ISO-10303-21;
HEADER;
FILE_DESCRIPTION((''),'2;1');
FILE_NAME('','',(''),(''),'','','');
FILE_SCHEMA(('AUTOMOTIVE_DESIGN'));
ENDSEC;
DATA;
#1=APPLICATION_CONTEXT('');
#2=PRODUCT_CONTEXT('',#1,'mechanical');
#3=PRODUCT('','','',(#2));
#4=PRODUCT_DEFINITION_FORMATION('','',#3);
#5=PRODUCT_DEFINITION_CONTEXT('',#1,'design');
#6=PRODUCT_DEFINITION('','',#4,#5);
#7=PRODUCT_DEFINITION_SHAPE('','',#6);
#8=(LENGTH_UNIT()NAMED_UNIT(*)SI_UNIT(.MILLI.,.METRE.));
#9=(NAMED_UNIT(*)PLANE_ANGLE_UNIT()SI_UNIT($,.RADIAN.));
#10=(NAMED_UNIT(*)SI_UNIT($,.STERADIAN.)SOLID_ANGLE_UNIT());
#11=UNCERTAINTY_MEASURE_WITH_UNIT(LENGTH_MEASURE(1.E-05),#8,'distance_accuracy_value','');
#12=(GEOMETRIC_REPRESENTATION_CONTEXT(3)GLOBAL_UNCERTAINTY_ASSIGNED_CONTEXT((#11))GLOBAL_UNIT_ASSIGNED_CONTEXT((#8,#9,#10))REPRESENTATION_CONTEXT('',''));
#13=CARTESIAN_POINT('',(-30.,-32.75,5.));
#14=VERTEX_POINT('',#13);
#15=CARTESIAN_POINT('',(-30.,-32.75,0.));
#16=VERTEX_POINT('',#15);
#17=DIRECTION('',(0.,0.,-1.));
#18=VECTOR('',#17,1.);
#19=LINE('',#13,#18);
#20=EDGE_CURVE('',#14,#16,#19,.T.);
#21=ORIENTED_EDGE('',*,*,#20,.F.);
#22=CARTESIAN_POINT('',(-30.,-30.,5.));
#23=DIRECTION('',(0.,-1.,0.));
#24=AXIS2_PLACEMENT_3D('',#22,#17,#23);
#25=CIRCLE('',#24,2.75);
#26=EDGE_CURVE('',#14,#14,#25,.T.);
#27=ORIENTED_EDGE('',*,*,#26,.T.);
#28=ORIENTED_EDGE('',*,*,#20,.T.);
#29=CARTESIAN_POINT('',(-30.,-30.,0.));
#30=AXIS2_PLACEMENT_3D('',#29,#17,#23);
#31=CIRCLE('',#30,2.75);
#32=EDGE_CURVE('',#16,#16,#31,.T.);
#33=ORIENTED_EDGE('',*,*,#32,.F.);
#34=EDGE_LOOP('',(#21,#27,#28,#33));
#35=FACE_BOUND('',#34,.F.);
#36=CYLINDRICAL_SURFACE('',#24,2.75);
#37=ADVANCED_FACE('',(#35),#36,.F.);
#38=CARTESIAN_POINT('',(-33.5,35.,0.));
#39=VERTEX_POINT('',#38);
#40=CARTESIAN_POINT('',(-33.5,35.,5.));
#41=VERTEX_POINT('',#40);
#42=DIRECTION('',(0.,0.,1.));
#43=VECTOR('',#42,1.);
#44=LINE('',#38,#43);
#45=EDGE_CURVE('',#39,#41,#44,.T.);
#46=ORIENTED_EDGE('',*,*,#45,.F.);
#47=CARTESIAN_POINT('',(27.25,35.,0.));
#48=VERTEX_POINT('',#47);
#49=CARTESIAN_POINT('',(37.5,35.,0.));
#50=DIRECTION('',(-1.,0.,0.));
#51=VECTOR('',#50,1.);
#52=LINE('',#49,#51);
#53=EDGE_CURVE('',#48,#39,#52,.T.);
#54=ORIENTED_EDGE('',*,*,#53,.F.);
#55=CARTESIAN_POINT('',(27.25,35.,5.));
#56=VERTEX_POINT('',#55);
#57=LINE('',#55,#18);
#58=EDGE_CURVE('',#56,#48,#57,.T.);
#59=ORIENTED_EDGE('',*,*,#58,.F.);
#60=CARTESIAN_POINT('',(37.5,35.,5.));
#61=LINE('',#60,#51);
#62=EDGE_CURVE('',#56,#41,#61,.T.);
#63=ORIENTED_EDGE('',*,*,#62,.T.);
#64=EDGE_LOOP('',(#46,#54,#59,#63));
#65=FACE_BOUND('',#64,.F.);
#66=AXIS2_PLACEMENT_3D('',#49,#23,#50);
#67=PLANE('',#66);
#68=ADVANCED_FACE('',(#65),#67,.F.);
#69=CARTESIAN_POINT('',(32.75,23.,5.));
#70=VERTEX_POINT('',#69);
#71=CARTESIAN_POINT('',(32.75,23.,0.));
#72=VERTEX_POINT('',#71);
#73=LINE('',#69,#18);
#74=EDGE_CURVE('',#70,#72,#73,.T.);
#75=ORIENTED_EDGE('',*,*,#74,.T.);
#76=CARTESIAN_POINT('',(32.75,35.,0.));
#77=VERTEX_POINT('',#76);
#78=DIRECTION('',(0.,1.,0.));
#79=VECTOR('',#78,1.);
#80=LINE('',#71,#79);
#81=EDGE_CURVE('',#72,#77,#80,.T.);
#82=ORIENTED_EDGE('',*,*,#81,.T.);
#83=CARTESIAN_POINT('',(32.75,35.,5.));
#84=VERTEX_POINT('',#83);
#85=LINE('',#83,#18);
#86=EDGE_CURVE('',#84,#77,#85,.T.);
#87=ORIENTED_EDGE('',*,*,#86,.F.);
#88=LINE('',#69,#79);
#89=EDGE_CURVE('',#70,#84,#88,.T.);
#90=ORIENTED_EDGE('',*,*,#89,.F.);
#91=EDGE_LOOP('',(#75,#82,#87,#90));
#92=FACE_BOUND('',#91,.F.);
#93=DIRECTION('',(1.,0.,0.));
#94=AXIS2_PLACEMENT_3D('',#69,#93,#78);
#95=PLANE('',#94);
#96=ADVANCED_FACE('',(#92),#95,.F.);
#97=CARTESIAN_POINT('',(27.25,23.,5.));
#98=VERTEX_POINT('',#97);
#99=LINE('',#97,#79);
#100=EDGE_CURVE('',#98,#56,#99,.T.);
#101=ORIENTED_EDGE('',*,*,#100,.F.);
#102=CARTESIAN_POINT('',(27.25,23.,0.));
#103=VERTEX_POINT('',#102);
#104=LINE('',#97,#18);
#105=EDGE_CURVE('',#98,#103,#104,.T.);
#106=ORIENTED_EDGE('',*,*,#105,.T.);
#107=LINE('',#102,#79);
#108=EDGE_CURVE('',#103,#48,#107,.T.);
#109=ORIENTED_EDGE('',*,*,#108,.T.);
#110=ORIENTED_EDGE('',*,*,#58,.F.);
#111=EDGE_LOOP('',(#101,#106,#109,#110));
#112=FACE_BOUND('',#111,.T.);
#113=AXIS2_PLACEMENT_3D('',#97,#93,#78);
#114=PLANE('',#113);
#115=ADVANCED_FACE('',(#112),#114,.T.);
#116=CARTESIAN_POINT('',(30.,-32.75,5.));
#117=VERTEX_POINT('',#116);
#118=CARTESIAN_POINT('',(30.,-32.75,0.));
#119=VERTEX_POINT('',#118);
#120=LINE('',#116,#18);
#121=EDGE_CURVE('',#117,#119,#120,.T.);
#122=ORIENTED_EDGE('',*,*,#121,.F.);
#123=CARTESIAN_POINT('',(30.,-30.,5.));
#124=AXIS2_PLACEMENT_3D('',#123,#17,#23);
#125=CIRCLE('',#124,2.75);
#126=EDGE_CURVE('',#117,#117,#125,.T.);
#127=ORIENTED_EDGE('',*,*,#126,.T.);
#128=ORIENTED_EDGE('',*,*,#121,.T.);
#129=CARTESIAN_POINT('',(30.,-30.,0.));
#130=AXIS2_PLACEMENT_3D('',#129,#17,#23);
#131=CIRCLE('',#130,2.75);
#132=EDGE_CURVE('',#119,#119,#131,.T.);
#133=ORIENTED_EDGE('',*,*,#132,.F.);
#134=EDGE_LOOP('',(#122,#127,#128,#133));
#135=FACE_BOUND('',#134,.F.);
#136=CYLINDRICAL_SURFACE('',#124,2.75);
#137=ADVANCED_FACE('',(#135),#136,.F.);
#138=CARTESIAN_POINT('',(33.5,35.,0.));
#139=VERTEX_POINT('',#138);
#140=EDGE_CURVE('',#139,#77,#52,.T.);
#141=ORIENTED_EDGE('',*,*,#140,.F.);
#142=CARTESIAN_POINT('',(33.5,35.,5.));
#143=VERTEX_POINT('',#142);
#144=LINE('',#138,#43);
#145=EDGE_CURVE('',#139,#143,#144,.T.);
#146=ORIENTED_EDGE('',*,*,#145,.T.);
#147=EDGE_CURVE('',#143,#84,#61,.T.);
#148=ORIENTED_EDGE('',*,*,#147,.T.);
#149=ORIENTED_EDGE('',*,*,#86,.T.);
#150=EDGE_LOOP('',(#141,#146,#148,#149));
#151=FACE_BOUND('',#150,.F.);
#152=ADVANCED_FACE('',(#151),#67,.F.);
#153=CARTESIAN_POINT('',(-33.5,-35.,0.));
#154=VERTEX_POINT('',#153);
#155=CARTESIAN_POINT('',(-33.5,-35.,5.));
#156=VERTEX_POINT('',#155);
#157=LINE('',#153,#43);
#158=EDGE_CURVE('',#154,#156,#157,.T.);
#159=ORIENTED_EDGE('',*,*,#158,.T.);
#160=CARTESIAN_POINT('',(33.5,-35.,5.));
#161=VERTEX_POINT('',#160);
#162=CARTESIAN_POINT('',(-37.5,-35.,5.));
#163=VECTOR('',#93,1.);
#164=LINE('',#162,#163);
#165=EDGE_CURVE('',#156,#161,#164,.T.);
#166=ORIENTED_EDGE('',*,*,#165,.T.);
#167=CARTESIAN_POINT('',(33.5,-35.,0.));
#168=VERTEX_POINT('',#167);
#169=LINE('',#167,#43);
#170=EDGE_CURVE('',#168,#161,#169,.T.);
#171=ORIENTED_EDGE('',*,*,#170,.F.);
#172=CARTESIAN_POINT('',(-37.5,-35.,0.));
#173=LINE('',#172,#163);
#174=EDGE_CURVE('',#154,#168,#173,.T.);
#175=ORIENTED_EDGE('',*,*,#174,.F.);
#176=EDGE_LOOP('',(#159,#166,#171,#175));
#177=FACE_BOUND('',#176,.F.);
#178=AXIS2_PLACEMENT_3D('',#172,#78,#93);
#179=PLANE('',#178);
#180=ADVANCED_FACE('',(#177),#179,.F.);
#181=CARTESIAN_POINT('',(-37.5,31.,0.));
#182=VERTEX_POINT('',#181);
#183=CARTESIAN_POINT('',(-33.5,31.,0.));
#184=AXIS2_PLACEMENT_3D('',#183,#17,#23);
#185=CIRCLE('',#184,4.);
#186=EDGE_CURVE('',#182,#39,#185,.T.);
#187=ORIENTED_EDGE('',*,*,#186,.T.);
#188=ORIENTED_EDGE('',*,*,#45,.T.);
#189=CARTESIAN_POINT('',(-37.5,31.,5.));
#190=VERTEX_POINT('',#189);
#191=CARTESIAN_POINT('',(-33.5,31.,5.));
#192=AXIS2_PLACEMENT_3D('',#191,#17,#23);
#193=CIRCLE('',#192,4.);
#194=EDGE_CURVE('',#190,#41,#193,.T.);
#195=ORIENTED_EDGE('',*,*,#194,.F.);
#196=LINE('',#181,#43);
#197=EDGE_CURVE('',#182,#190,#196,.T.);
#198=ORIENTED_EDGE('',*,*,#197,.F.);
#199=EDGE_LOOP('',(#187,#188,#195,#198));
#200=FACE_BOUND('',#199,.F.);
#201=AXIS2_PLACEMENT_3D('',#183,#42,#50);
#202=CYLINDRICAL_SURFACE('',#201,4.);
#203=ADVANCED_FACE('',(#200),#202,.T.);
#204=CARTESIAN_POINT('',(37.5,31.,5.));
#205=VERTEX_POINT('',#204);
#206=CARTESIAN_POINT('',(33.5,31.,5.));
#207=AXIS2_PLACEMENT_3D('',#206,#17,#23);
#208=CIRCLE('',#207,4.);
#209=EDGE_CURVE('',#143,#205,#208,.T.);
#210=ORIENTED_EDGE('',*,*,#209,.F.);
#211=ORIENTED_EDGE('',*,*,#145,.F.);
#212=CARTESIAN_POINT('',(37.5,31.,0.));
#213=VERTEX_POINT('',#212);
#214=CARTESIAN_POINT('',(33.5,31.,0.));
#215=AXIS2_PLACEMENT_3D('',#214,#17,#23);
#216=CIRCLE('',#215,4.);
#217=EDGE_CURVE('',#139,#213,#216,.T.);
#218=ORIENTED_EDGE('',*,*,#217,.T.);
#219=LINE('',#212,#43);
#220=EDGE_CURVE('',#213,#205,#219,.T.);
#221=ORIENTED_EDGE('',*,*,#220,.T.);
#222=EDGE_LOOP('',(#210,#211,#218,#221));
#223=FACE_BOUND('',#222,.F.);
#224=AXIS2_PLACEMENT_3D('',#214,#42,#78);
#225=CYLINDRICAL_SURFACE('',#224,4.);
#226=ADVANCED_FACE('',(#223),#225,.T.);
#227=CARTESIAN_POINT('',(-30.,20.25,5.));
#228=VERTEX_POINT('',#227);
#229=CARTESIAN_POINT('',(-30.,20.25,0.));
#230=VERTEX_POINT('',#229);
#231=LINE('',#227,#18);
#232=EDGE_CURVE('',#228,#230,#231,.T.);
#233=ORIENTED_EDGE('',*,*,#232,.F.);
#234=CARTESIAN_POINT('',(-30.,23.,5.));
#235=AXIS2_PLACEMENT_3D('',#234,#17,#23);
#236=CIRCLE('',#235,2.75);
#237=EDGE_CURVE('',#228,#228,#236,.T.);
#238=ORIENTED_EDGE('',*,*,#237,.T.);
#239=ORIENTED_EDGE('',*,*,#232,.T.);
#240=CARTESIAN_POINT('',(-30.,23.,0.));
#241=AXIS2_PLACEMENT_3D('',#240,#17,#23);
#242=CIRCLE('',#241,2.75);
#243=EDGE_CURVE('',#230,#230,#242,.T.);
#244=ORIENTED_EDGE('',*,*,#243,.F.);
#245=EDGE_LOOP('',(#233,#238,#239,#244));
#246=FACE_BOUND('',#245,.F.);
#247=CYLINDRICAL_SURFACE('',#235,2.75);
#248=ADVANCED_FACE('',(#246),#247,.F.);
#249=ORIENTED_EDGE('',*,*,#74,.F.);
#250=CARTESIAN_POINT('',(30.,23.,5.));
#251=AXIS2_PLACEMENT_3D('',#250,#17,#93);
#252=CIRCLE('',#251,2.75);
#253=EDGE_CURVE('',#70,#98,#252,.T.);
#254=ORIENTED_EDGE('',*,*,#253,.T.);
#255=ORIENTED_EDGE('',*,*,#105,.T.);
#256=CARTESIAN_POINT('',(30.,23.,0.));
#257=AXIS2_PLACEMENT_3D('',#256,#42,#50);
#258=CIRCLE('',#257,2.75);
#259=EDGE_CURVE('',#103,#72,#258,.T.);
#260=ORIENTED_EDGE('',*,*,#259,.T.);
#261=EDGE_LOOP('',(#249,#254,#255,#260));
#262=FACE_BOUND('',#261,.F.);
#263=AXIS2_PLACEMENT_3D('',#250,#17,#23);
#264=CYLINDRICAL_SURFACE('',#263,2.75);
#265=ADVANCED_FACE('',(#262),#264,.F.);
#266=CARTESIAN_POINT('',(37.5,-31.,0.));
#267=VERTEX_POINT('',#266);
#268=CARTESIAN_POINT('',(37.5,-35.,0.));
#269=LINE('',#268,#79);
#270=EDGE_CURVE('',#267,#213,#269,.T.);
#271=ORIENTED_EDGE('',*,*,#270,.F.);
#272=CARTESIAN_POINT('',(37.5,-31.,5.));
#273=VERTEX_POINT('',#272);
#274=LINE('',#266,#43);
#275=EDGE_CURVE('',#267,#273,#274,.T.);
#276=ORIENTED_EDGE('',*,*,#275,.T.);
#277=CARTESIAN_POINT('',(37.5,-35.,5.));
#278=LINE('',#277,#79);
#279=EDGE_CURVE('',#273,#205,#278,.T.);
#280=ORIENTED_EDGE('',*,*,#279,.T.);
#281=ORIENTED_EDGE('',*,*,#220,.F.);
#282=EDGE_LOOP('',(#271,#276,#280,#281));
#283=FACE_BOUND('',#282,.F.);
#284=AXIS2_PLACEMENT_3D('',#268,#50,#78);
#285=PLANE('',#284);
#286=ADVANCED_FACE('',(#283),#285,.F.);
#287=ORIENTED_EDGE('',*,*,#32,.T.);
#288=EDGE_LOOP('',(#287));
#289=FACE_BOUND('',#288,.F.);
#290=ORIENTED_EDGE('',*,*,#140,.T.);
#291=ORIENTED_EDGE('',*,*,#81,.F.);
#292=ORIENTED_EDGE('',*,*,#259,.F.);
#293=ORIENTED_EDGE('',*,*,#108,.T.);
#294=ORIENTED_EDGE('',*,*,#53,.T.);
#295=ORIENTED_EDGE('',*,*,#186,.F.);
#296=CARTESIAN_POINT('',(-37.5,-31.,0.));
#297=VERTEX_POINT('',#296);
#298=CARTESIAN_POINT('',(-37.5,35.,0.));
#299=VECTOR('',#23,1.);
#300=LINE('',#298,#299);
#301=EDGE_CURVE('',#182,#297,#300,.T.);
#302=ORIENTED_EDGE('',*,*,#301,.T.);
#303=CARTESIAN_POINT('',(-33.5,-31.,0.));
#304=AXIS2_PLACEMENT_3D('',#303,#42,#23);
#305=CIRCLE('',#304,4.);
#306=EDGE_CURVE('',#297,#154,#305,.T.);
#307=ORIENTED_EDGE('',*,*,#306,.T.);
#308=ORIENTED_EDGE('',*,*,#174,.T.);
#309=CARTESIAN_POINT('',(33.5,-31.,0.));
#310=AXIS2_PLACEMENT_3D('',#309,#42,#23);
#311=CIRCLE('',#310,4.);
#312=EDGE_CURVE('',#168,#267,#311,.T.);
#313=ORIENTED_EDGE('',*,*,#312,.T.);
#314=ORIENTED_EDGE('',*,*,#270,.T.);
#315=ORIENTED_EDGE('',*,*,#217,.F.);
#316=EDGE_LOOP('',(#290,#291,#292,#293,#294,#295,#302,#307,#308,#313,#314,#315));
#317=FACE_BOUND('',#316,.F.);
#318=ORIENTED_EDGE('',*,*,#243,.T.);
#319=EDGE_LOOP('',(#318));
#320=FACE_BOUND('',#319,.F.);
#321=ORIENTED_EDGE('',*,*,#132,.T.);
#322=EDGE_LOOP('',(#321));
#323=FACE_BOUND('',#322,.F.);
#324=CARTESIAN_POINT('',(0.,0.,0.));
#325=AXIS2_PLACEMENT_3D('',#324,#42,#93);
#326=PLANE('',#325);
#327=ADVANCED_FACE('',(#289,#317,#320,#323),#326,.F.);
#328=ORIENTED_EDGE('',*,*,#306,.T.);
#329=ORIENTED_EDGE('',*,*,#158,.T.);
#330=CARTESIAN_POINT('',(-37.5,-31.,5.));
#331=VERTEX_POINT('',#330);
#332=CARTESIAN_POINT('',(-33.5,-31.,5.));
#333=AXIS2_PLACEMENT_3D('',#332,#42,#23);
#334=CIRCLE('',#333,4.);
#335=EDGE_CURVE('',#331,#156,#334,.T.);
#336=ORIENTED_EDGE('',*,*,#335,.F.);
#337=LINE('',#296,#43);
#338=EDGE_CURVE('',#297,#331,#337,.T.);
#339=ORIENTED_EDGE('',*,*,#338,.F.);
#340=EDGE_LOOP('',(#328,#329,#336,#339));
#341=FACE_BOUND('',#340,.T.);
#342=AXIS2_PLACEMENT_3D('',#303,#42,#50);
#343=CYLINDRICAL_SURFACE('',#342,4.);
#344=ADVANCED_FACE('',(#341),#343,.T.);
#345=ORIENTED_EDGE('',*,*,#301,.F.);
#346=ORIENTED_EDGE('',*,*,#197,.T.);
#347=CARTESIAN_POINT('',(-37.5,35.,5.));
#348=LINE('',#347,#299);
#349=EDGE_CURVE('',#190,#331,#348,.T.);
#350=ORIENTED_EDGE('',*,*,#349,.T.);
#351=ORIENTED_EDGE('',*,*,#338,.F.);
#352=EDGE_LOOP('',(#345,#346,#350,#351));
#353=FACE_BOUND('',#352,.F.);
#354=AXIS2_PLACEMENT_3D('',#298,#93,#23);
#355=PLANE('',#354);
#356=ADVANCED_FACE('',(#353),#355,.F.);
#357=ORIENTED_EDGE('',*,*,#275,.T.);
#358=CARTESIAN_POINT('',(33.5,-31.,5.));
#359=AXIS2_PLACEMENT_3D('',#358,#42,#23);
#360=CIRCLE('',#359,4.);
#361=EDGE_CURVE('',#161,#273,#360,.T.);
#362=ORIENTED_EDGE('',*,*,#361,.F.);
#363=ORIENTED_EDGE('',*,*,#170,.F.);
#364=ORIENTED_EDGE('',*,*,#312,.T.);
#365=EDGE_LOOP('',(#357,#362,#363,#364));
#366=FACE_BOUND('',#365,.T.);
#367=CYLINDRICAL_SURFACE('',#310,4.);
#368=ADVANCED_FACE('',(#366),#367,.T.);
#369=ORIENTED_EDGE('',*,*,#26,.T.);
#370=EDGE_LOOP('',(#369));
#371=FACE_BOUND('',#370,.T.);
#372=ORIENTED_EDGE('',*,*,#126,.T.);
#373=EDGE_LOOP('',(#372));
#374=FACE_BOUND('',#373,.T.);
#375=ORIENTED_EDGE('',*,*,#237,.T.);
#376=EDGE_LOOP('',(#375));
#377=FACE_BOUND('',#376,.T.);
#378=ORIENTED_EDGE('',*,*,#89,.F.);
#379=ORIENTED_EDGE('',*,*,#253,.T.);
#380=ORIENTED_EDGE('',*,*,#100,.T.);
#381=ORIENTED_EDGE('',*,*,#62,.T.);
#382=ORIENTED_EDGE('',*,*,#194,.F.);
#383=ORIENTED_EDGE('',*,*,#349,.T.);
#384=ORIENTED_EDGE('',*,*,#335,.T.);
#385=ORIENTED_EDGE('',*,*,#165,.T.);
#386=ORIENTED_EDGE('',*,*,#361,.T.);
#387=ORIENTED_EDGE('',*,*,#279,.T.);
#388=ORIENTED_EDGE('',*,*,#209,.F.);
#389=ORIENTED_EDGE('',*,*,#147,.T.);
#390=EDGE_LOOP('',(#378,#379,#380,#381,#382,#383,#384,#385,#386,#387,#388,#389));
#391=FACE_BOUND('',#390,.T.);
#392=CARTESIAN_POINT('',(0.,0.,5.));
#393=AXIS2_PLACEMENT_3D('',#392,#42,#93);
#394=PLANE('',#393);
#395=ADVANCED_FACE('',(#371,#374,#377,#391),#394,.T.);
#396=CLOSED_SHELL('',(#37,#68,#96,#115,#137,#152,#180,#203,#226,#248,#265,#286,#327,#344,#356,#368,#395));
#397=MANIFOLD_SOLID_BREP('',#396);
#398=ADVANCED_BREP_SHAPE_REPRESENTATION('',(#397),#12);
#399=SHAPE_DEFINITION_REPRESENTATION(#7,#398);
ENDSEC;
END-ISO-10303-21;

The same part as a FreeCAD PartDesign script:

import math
import FreeCAD as App
import Part
import Sketcher


def edges_at(feature, points):
    """Names of the edges that pass closest to the given points."""
    edges = feature.Shape.Edges
    near = lambda p: min(range(len(edges)), key=lambda i: edges[i].distToShape(Part.Vertex(*p))[0])
    return sorted({f"Edge{near(p) + 1}" for p in points})

doc = App.newDocument("Part")
body = doc.addObject("PartDesign::Body", "Body")

# Sketch on XY plane
sketch1 = body.newObject("Sketcher::SketchObject", "Sketch")
sketch1.AttachmentSupport = (doc.getObject("XY_Plane"), [""])
sketch1.MapMode = "FlatFace"
sketch1.addGeometry(Part.LineSegment(App.Vector(-38, 35, 0), App.Vector(-38, -35, 0)), False)
sketch1.addGeometry(Part.LineSegment(App.Vector(-38, -35, 0), App.Vector(38, -35, 0)), False)
sketch1.addGeometry(Part.LineSegment(App.Vector(38, -35, 0), App.Vector(38, 35, 0)), False)
sketch1.addGeometry(Part.LineSegment(App.Vector(38, 35, 0), App.Vector(-38, 35, 0)), False)
sketch1.addConstraint(Sketcher.Constraint("Coincident", 0, 2, 1, 1))
sketch1.addConstraint(Sketcher.Constraint("Coincident", 1, 2, 2, 1))
sketch1.addConstraint(Sketcher.Constraint("Coincident", 2, 2, 3, 1))
sketch1.addConstraint(Sketcher.Constraint("Coincident", 3, 2, 0, 1))
sketch1.addConstraint(Sketcher.Constraint("Vertical", 0))
sketch1.addConstraint(Sketcher.Constraint("Horizontal", 1))
sketch1.addConstraint(Sketcher.Constraint("Vertical", 2))
sketch1.addConstraint(Sketcher.Constraint("Horizontal", 3))
sketch1.addConstraint(Sketcher.Constraint("Symmetric", 0, 2, 2, 2, -1, 1))
sketch1.addConstraint(Sketcher.Constraint("DistanceX", 1, 1, 1, 2, 75.0))
sketch1.addConstraint(Sketcher.Constraint("DistanceY", 0, 2, 0, 1, 70.0))
pad1 = body.newObject("PartDesign::Pad", "Pad")
pad1.Profile = sketch1
pad1.Length = 5

# Sketch on XY plane
sketch2 = body.newObject("Sketcher::SketchObject", "Sketch001")
sketch2.AttachmentSupport = (doc.getObject("XY_Plane"), [""])
sketch2.MapMode = "FlatFace"
sketch2.AttachmentOffset = App.Placement(App.Vector(0, 0, 5), App.Rotation())
sketch2.addGeometry(Part.Circle(App.Vector(-30, -30, 0), App.Vector(0, 0, 1), 2.8), False)
sketch2.addGeometry(Part.Circle(App.Vector(30, -30, 0), App.Vector(0, 0, 1), 2.8), False)
sketch2.addGeometry(Part.Circle(App.Vector(30, 23, 0), App.Vector(0, 0, 1), 2.8), False)
sketch2.addGeometry(Part.Circle(App.Vector(-30, 23, 0), App.Vector(0, 0, 1), 2.8), False)
sketch2.addConstraint(Sketcher.Constraint("Equal", 0, 1))
sketch2.addConstraint(Sketcher.Constraint("Equal", 1, 2))
sketch2.addConstraint(Sketcher.Constraint("Equal", 2, 3))
sketch2.addConstraint(Sketcher.Constraint("Symmetric", 0, 3, 1, 3, -2))
sketch2.addConstraint(Sketcher.Constraint("Symmetric", 2, 3, 3, 3, -2))
sketch2.addConstraint(Sketcher.Constraint("Vertical", 1, 3, 2, 3))
sketch2.addConstraint(Sketcher.Constraint("Diameter", 0, 5.5))
sketch2.addConstraint(Sketcher.Constraint("DistanceX", 0, 3, -1, 1, 30.0))
sketch2.addConstraint(Sketcher.Constraint("DistanceY", 0, 3, -1, 1, 30.0))
sketch2.addConstraint(Sketcher.Constraint("DistanceY", -1, 1, 2, 3, 23.0))
doc.recompute()
hole = body.newObject("PartDesign::Hole", "Hole")
hole.Profile = sketch2
hole.ThreadType = "None"
hole.Diameter = 5.5
hole.DepthType = "Dimension"
hole.Depth = 8
hole.DrillPoint = "Angled"
hole.DrillPointAngle = 118
doc.recompute()

fillet = body.newObject("PartDesign::Fillet", "Fillet")
fillet.Base = (hole, edges_at(hole, [
    (-37.5, 35, 2.5),
    (37.5, 35, 2.5),
    (-37.5, -35, 2.5),
    (37.5, -35, 2.5),
]))
fillet.Radius = 4

# Sketch on XY plane
sketch3 = body.newObject("Sketcher::SketchObject", "Sketch002")
sketch3.AttachmentSupport = (doc.getObject("XY_Plane"), [""])
sketch3.MapMode = "FlatFace"
sketch3.AttachmentOffset = App.Placement(App.Vector(0, 0, 5), App.Rotation())
sketch3.addGeometry(Part.ArcOfCircle(Part.Circle(App.Vector(30, 23, 0), App.Vector(0, 0, 1), 2.8), math.radians(0), math.radians(180)), False)
sketch3.addGeometry(Part.LineSegment(App.Vector(32.8, 23, 0), App.Vector(32.8, 35, 0)), False)
sketch3.addGeometry(Part.LineSegment(App.Vector(32.8, 35, 0), App.Vector(27.2, 35, 0)), False)
sketch3.addGeometry(Part.LineSegment(App.Vector(27.2, 35, 0), App.Vector(27.2, 23, 0)), False)
sketch3.addConstraint(Sketcher.Constraint("Tangent", 0, 1, 1, 1))
sketch3.addConstraint(Sketcher.Constraint("Coincident", 1, 2, 2, 1))
sketch3.addConstraint(Sketcher.Constraint("Coincident", 2, 2, 3, 1))
sketch3.addConstraint(Sketcher.Constraint("Tangent", 3, 2, 0, 2))
sketch3.addConstraint(Sketcher.Constraint("Vertical", 1))
sketch3.addConstraint(Sketcher.Constraint("Horizontal", 2))
sketch3.addConstraint(Sketcher.Constraint("Vertical", 3))
sketch3.addConstraint(Sketcher.Constraint("DistanceY", 1, 1, 1, 2, 12.0))
sketch3.addConstraint(Sketcher.Constraint("Radius", 0, 2.75))
sketch3.addConstraint(Sketcher.Constraint("DistanceX", -1, 1, 0, 3, 30.0))
sketch3.addConstraint(Sketcher.Constraint("DistanceY", -1, 1, 0, 3, 23.0))
pocket1 = body.newObject("PartDesign::Pocket", "Pocket")
pocket1.Profile = sketch3
pocket1.Length = 5

doc.recompute()
